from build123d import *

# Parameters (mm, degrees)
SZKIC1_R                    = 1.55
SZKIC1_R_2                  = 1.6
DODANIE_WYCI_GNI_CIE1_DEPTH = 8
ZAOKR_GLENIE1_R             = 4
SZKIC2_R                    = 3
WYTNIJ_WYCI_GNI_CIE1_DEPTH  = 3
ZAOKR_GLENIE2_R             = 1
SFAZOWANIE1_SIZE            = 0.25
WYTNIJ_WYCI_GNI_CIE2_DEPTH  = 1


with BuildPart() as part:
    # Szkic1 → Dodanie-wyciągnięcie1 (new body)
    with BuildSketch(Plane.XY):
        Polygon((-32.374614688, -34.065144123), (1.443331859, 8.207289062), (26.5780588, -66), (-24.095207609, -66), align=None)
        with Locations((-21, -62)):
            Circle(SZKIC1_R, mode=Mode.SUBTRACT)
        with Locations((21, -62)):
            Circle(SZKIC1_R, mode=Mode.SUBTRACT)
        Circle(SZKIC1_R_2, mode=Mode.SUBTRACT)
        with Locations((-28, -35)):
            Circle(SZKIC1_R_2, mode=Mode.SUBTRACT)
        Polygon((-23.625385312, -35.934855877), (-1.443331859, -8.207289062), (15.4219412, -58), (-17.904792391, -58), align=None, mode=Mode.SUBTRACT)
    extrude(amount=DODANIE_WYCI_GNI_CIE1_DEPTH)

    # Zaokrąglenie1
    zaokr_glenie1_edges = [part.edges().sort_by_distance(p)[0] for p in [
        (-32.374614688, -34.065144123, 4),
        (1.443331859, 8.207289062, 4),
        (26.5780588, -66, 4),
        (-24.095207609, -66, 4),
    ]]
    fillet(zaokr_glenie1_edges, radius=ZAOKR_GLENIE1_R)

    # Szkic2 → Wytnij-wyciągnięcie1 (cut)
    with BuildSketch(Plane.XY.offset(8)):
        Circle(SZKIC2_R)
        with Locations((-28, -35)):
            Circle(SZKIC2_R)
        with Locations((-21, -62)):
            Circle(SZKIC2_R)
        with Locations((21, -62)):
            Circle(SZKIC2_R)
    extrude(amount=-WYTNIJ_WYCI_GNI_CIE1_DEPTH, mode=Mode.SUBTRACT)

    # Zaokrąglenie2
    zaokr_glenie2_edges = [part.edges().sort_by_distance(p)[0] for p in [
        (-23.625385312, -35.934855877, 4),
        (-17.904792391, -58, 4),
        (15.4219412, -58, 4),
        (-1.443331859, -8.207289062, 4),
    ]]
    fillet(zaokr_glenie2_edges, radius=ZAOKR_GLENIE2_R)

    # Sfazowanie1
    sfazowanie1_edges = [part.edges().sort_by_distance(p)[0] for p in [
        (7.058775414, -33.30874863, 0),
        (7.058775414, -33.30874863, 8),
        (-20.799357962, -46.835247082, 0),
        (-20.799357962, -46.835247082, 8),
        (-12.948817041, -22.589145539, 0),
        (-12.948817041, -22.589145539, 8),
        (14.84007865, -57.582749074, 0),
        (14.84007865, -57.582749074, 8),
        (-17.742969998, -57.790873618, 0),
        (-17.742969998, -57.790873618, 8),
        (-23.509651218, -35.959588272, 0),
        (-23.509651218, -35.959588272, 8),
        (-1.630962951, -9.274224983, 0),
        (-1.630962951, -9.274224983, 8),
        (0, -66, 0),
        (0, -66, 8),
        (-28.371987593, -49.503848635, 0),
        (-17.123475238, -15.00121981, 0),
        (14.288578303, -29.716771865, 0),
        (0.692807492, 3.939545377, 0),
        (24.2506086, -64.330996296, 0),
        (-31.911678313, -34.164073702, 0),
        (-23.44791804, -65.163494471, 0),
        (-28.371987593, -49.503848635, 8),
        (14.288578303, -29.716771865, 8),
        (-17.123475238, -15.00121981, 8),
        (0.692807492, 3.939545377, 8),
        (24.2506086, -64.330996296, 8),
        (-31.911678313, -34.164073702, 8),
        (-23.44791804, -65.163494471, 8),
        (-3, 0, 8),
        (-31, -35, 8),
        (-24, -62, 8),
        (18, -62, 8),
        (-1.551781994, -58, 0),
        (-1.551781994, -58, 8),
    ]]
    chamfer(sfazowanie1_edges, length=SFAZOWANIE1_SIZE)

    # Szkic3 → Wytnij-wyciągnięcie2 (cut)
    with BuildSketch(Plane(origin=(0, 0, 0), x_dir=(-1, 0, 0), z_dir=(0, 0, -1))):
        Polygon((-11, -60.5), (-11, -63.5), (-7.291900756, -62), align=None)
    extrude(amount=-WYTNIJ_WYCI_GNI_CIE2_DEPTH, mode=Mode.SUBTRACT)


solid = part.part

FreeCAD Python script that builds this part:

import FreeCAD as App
import Part
import Sketcher


def edges_at(feature, points):
    """Names of the edges that pass closest to the given points."""
    edges = feature.Shape.Edges
    near = lambda p: min(range(len(edges)), key=lambda i: edges[i].distToShape(Part.Vertex(*p))[0])
    return sorted({f"Edge{near(p) + 1}" for p in points})

doc = App.newDocument("Part")
body = doc.addObject("PartDesign::Body", "Body")

sketch1 = body.newObject("Sketcher::SketchObject", "Sketch")
sketch1.AttachmentSupport = (doc.getObject("XY_Plane"), [""])
sketch1.MapMode = "FlatFace"
sketch1.addGeometry([
    Part.LineSegment(App.Vector(1.443332, 8.207289, 0), App.Vector(-32.374615, -34.065144, 0)),
    Part.LineSegment(App.Vector(-32.374615, -34.065144, 0), App.Vector(-24.095208, -66, 0)),
    Part.LineSegment(App.Vector(-24.095208, -66, 0), App.Vector(26.578059, -66, 0)),
    Part.LineSegment(App.Vector(26.578059, -66, 0), App.Vector(1.443332, 8.207289, 0)),
    Part.Circle(App.Vector(21, -62, 0), App.Vector(0, 0, 1), 1.55),
    Part.Circle(App.Vector(-21, -62, 0), App.Vector(0, 0, 1), 1.55),
    Part.LineSegment(App.Vector(-23.625385, -35.934856, 0), App.Vector(-1.443332, -8.207289, 0)),
    Part.LineSegment(App.Vector(-1.443332, -8.207289, 0), App.Vector(15.421941, -58, 0)),
    Part.LineSegment(App.Vector(15.421941, -58, 0), App.Vector(-17.904792, -58, 0)),
    Part.LineSegment(App.Vector(-17.904792, -58, 0), App.Vector(-23.625385, -35.934856, 0)),
    Part.Circle(App.Vector(-28, -35, 0), App.Vector(0, 0, 1), 1.6),
    Part.Circle(App.Vector(0, 0, 0), App.Vector(0, 0, 1), 1.6),
], False)
sketch1.addConstraint([
    Sketcher.Constraint("Coincident", 0, 2, 1, 1),
    Sketcher.Constraint("Coincident", 1, 2, 2, 1),
    Sketcher.Constraint("Coincident", 2, 2, 3, 1),
    Sketcher.Constraint("Coincident", 3, 2, 0, 1),
    Sketcher.Constraint("Coincident", 6, 2, 7, 1),
    Sketcher.Constraint("Coincident", 7, 2, 8, 1),
    Sketcher.Constraint("Coincident", 8, 2, 9, 1),
    Sketcher.Constraint("Coincident", 9, 2, 6, 1),
    Sketcher.Constraint("Horizontal", 2),
    Sketcher.Constraint("Horizontal", 8),
    Sketcher.Constraint("Coincident", 11, 3, -1, 1),
    Sketcher.Constraint("Diameter", 4, 3.1),
    Sketcher.Constraint("Diameter", 5, 3.1),
    Sketcher.Constraint("Diameter", 10, 3.2),
    Sketcher.Constraint("Diameter", 11, 3.2),
    Sketcher.Constraint("DistanceX", -1, 1, 4, 3, 21.0),
    Sketcher.Constraint("DistanceY", 4, 3, -1, 1, 62.0),
    Sketcher.Constraint("DistanceX", 5, 3, -1, 1, 21.0),
    Sketcher.Constraint("DistanceY", 5, 3, -1, 1, 62.0),
    Sketcher.Constraint("DistanceX", 10, 3, -1, 1, 28.0),
    Sketcher.Constraint("DistanceY", 10, 3, -1, 1, 35.0),
    Sketcher.Constraint("DistanceY", 1, 2, -1, 1, 66.0),
    Sketcher.Constraint("DistanceY", 7, 2, -1, 1, 58.0),
    Sketcher.Constraint("Distance", 0, 54.135128),
    Sketcher.Constraint("Distance", 1, 32.990659),
    Sketcher.Constraint("Distance", 3, 78.348428),
    Sketcher.Constraint("Distance", 6, 35.508611),
    Sketcher.Constraint("DistanceX", 2, 1, 2, 2, 50.673266),
    Sketcher.Constraint("DistanceX", 8, 2, 8, 1, 33.326734),
    Sketcher.Constraint("DistanceX", -1, 1, 2, 2, 26.578059),
    Sketcher.Constraint("DistanceX", -1, 1, 3, 2, 1.443332),
    Sketcher.Constraint("DistanceX", 6, 2, -1, 1, 1.443332),
    Sketcher.Constraint("DistanceY", 6, 2, -1, 1, 8.207289),
    Sketcher.Constraint("DistanceX", -1, 1, 7, 2, 15.421941),
    Sketcher.Constraint("DistanceX", 0, 2, 9, 2, 8.749229),
])
pad1 = body.newObject("PartDesign::Pad", "Pad")
pad1.Profile = sketch1
pad1.Length = 8
doc.recompute()

fillet = body.newObject("PartDesign::Fillet", "Fillet")
fillet.Base = (pad1, edges_at(pad1, [
    (-32.375, -34.065, 4),
    (1.443, 8.207, 4),
    (26.578, -66, 4),
    (-24.095, -66, 4),
]))
fillet.Radius = 4

sketch2 = body.newObject("Sketcher::SketchObject", "Sketch001")
sketch2.AttachmentSupport = (doc.getObject("XY_Plane"), [""])
sketch2.MapMode = "FlatFace"
sketch2.AttachmentOffset = App.Placement(App.Vector(0, 0, 8), App.Rotation())
sketch2.addGeometry([
    Part.Circle(App.Vector(0, 0, 0), App.Vector(0, 0, 1), 3),
    Part.Circle(App.Vector(-28, -35, 0), App.Vector(0, 0, 1), 3),
    Part.Circle(App.Vector(-21, -62, 0), App.Vector(0, 0, 1), 3),
    Part.Circle(App.Vector(21, -62, 0), App.Vector(0, 0, 1), 3),
], False)
sketch2.addConstraint([
    Sketcher.Constraint("Coincident", 0, 3, -1, 1),
    Sketcher.Constraint("Equal", 0, 1),
    Sketcher.Constraint("Equal", 1, 2),
    Sketcher.Constraint("Equal", 2, 3),
    Sketcher.Constraint("Symmetric", 2, 3, 3, 3, -2),
    Sketcher.Constraint("Diameter", 0, 6.0),
    Sketcher.Constraint("DistanceX", 1, 3, -1, 1, 28.0),
    Sketcher.Constraint("DistanceY", 1, 3, -1, 1, 35.0),
    Sketcher.Constraint("DistanceX", 2, 3, -1, 1, 21.0),
    Sketcher.Constraint("DistanceY", 2, 3, -1, 1, 62.0),
])
pocket1 = body.newObject("PartDesign::Pocket", "Pocket")
pocket1.Profile = sketch2
pocket1.Length = 3
doc.recompute()

fillet2 = body.newObject("PartDesign::Fillet", "Fillet001")
fillet2.Base = (pocket1, edges_at(pocket1, [
    (-23.625, -35.935, 4),
    (-17.905, -58, 4),
    (15.422, -58, 4),
    (-1.443, -8.207, 4),
]))
fillet2.Radius = 1
doc.recompute()

chamfer = body.newObject("PartDesign::Chamfer", "Chamfer")
chamfer.Base = (fillet2, edges_at(fillet2, [
    (7.059, -33.309, 0),
    (7.059, -33.309, 8),
    (-20.799, -46.835, 0),
    (-20.799, -46.835, 8),
    (-12.949, -22.589, 0),
    (-12.949, -22.589, 8),
    (14.84, -57.583, 0),
    (14.84, -57.583, 8),
    (-17.743, -57.791, 0),
    (-17.743, -57.791, 8),
    (-23.51, -35.96, 0),
    (-23.51, -35.96, 8),
    (-1.631, -9.274, 0),
    (-1.631, -9.274, 8),
    (0, -66, 0),
    (0, -66, 8),
    (-28.372, -49.504, 0),
    (-17.123, -15.001, 0),
    (14.289, -29.717, 0),
    (0.693, 3.94, 0),
    (24.251, -64.331, 0),
    (-31.912, -34.164, 0),
    (-23.448, -65.163, 0),
    (-28.372, -49.504, 8),
    (14.289, -29.717, 8),
    (-17.123, -15.001, 8),
    (0.693, 3.94, 8),
    (24.251, -64.331, 8),
    (-31.912, -34.164, 8),
    (-23.448, -65.163, 8),
    (-3, 0, 8),
    (-31, -35, 8),
    (-24, -62, 8),
    (18, -62, 8),
    (-1.552, -58, 0),
    (-1.552, -58, 8),
]))
chamfer.Size = 0.25

sketch3 = body.newObject("Sketcher::SketchObject", "Sketch002")
sketch3.AttachmentSupport = (doc.getObject("XY_Plane"), [""])
sketch3.MapMode = "FlatFace"
sketch3.addGeometry([
    Part.LineSegment(App.Vector(11, -60.5, 0), App.Vector(11, -63.5, 0)),
    Part.LineSegment(App.Vector(11, -63.5, 0), App.Vector(7.291901, -62, 0)),
    Part.LineSegment(App.Vector(7.291901, -62, 0), App.Vector(11, -60.5, 0)),
], False)
sketch3.addConstraint([
    Sketcher.Constraint("Coincident", 0, 2, 1, 1),
    Sketcher.Constraint("Coincident", 1, 2, 2, 1),
    Sketcher.Constraint("Coincident", 2, 2, 0, 1),
    Sketcher.Constraint("Vertical", 0),
    Sketcher.Constraint("Equal", 1, 2),
    Sketcher.Constraint("DistanceY", 0, 2, 0, 1, 3.0),
    Sketcher.Constraint("Distance", 1, 4.0),
    Sketcher.Constraint("DistanceX", -1, 1, 0, 2, 11.0),
    Sketcher.Constraint("DistanceY", 1, 2, -1, 1, 62.0),
])
pocket2 = body.newObject("PartDesign::Pocket", "Pocket001")
pocket2.Profile = sketch3
pocket2.Length = 1
pocket2.Reversed = True

doc.recompute()
